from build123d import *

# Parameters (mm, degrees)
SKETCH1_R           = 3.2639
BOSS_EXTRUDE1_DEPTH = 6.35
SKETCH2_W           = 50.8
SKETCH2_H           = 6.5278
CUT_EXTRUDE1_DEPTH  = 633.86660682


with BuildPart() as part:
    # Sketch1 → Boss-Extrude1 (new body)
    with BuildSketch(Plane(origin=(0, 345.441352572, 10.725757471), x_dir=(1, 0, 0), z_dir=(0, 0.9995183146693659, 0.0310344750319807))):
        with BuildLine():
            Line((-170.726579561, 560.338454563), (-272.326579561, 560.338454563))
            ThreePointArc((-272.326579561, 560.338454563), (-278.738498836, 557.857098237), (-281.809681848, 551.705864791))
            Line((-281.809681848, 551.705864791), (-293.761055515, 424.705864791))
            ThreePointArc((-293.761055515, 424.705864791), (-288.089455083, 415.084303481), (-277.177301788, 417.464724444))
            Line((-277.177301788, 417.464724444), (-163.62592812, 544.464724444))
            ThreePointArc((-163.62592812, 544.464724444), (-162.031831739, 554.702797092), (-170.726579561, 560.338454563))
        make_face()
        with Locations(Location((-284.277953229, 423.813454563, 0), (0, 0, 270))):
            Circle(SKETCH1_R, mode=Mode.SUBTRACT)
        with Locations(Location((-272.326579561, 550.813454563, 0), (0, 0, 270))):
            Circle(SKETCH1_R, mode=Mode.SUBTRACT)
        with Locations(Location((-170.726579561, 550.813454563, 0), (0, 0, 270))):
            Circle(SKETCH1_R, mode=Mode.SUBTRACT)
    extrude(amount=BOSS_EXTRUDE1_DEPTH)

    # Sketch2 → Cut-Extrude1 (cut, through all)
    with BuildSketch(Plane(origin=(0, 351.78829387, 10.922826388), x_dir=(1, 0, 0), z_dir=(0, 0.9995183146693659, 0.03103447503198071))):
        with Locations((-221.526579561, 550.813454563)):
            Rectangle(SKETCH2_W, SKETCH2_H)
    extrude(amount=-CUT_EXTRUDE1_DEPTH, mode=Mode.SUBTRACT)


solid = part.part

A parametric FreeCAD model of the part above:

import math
import FreeCAD as App
import Part
import Sketcher

V = App.Vector
Q = App.Units.Quantity


def add_polygon(sketch, points):
    """Adds a closed chain of lines whose ends are joined by coincident constraints."""
    first, n = sketch.GeometryCount, len(points)
    for a, b in zip(points, points[1:] + points[:1]):
        sketch.addGeometry(Part.LineSegment(App.Vector(*a, 0), App.Vector(*b, 0)), False)
    for i in range(n):
        sketch.addConstraint(Sketcher.Constraint("Coincident", first + i, 2, first + (i + 1) % n, 1))

doc = App.newDocument("Part")
body = doc.addObject("PartDesign::Body", "Body")

sketch1 = body.newObject("Sketcher::SketchObject", "Sketch")
sketch1.Placement = App.Placement(V(0, 345.441353, 10.725757), App.Rotation(V(1, 0, 0), V(0, 0.031034475, -0.999518315), V(0, 0.999518315, 0.031034475), "ZXY"))
sketch1.addGeometry([
    Part.LineSegment(V(-170.7, 560.3, 0), V(-272.3, 560.3, 0)),
    Part.ArcOfCircle(Part.Circle(V(-272.3, 550.8, 0), V(0, 0, 1), 9.5), math.radians(90), math.radians(175)),
    Part.LineSegment(V(-281.8, 551.7, 0), V(-293.8, 424.7, 0)),
    Part.ArcOfCircle(Part.Circle(V(-284.3, 423.8, 0), V(0, 0, 1), 9.5), math.radians(175), math.radians(318)),
    Part.LineSegment(V(-277.2, 417.5, 0), V(-163.6, 544.5, 0)),
    Part.ArcOfCircle(Part.Circle(V(-170.7, 550.8, 0), V(0, 0, 1), 9.5), math.radians(-42), math.radians(90)),
    Part.Circle(V(-284.3, 423.8, 0), V(0, 0, 1), 3.3),
    Part.Circle(V(-272.3, 550.8, 0), V(0, 0, 1), 3.3),
    Part.Circle(V(-170.7, 550.8, 0), V(0, 0, 1), 3.3),
], False)
sketch1.addConstraint([
    Sketcher.Constraint("Tangent", 0, 2, 1, 1),
    Sketcher.Constraint("Tangent", 1, 2, 2, 1),
    Sketcher.Constraint("Tangent", 2, 2, 3, 1),
    Sketcher.Constraint("Tangent", 3, 2, 4, 1),
    Sketcher.Constraint("Tangent", 4, 2, 5, 1),
    Sketcher.Constraint("Tangent", 5, 2, 0, 1),
    Sketcher.Constraint("Horizontal", 0),
    Sketcher.Constraint("Coincident", 6, 3, 3, 3),
    Sketcher.Constraint("Coincident", 7, 3, 1, 3),
    Sketcher.Constraint("Coincident", 8, 3, 5, 3),
    Sketcher.Constraint("Equal", 1, 3),
    Sketcher.Constraint("Equal", 3, 5),
    Sketcher.Constraint("Equal", 6, 7),
    Sketcher.Constraint("Equal", 7, 8),
    Sketcher.Constraint("DistanceX", 0, 2, 0, 1, Q("4 in")),
    Sketcher.Constraint("Diameter", 6, Q("0.257 in")),
    Sketcher.Constraint("Radius", 1, Q("0.375 in")),
    Sketcher.Constraint("DistanceY", 3, 3, 1, 3, Q("5 in")),
    Sketcher.Constraint("DistanceX", 3, 2, -1, 1, 277.177302),
    Sketcher.Constraint("Distance", 4, 170.36113),
    Sketcher.Constraint("DistanceY", -1, 1, 1, 3, 550.813455),
])
pad1 = body.newObject("PartDesign::Pad", "Pad")
pad1.Profile = sketch1
pad1.Length = Q("0.25 in")

sketch2 = body.newObject("Sketcher::SketchObject", "Sketch001")
sketch2.Placement = App.Placement(V(0, 351.788294, 10.922826), App.Rotation(V(1, 0, 0), V(0, 0.031034475, -0.999518315), V(0, 0.999518315, 0.031034475), "ZXY"))
add_polygon(sketch2, [(-247, 554), (-247, 548), (-196, 548), (-196, 554)])
sketch2.addConstraint([
    Sketcher.Constraint("Vertical", 0),
    Sketcher.Constraint("Horizontal", 1),
    Sketcher.Constraint("Vertical", 2),
    Sketcher.Constraint("Horizontal", 3),
    Sketcher.Constraint("DistanceX", 1, 1, 1, 2, Q("2 in")),
    Sketcher.Constraint("DistanceY", 0, 2, 0, 1, Q("0.257 in")),
    Sketcher.Constraint("DistanceX", 0, 2, -1, 1, 246.92658),
    Sketcher.Constraint("DistanceY", -1, 1, 0, 2, 547.549555),
])
pocket1 = body.newObject("PartDesign::Pocket", "Pocket")
pocket1.Profile = sketch2
pocket1.Type = "ThroughAll"

doc.recompute()
